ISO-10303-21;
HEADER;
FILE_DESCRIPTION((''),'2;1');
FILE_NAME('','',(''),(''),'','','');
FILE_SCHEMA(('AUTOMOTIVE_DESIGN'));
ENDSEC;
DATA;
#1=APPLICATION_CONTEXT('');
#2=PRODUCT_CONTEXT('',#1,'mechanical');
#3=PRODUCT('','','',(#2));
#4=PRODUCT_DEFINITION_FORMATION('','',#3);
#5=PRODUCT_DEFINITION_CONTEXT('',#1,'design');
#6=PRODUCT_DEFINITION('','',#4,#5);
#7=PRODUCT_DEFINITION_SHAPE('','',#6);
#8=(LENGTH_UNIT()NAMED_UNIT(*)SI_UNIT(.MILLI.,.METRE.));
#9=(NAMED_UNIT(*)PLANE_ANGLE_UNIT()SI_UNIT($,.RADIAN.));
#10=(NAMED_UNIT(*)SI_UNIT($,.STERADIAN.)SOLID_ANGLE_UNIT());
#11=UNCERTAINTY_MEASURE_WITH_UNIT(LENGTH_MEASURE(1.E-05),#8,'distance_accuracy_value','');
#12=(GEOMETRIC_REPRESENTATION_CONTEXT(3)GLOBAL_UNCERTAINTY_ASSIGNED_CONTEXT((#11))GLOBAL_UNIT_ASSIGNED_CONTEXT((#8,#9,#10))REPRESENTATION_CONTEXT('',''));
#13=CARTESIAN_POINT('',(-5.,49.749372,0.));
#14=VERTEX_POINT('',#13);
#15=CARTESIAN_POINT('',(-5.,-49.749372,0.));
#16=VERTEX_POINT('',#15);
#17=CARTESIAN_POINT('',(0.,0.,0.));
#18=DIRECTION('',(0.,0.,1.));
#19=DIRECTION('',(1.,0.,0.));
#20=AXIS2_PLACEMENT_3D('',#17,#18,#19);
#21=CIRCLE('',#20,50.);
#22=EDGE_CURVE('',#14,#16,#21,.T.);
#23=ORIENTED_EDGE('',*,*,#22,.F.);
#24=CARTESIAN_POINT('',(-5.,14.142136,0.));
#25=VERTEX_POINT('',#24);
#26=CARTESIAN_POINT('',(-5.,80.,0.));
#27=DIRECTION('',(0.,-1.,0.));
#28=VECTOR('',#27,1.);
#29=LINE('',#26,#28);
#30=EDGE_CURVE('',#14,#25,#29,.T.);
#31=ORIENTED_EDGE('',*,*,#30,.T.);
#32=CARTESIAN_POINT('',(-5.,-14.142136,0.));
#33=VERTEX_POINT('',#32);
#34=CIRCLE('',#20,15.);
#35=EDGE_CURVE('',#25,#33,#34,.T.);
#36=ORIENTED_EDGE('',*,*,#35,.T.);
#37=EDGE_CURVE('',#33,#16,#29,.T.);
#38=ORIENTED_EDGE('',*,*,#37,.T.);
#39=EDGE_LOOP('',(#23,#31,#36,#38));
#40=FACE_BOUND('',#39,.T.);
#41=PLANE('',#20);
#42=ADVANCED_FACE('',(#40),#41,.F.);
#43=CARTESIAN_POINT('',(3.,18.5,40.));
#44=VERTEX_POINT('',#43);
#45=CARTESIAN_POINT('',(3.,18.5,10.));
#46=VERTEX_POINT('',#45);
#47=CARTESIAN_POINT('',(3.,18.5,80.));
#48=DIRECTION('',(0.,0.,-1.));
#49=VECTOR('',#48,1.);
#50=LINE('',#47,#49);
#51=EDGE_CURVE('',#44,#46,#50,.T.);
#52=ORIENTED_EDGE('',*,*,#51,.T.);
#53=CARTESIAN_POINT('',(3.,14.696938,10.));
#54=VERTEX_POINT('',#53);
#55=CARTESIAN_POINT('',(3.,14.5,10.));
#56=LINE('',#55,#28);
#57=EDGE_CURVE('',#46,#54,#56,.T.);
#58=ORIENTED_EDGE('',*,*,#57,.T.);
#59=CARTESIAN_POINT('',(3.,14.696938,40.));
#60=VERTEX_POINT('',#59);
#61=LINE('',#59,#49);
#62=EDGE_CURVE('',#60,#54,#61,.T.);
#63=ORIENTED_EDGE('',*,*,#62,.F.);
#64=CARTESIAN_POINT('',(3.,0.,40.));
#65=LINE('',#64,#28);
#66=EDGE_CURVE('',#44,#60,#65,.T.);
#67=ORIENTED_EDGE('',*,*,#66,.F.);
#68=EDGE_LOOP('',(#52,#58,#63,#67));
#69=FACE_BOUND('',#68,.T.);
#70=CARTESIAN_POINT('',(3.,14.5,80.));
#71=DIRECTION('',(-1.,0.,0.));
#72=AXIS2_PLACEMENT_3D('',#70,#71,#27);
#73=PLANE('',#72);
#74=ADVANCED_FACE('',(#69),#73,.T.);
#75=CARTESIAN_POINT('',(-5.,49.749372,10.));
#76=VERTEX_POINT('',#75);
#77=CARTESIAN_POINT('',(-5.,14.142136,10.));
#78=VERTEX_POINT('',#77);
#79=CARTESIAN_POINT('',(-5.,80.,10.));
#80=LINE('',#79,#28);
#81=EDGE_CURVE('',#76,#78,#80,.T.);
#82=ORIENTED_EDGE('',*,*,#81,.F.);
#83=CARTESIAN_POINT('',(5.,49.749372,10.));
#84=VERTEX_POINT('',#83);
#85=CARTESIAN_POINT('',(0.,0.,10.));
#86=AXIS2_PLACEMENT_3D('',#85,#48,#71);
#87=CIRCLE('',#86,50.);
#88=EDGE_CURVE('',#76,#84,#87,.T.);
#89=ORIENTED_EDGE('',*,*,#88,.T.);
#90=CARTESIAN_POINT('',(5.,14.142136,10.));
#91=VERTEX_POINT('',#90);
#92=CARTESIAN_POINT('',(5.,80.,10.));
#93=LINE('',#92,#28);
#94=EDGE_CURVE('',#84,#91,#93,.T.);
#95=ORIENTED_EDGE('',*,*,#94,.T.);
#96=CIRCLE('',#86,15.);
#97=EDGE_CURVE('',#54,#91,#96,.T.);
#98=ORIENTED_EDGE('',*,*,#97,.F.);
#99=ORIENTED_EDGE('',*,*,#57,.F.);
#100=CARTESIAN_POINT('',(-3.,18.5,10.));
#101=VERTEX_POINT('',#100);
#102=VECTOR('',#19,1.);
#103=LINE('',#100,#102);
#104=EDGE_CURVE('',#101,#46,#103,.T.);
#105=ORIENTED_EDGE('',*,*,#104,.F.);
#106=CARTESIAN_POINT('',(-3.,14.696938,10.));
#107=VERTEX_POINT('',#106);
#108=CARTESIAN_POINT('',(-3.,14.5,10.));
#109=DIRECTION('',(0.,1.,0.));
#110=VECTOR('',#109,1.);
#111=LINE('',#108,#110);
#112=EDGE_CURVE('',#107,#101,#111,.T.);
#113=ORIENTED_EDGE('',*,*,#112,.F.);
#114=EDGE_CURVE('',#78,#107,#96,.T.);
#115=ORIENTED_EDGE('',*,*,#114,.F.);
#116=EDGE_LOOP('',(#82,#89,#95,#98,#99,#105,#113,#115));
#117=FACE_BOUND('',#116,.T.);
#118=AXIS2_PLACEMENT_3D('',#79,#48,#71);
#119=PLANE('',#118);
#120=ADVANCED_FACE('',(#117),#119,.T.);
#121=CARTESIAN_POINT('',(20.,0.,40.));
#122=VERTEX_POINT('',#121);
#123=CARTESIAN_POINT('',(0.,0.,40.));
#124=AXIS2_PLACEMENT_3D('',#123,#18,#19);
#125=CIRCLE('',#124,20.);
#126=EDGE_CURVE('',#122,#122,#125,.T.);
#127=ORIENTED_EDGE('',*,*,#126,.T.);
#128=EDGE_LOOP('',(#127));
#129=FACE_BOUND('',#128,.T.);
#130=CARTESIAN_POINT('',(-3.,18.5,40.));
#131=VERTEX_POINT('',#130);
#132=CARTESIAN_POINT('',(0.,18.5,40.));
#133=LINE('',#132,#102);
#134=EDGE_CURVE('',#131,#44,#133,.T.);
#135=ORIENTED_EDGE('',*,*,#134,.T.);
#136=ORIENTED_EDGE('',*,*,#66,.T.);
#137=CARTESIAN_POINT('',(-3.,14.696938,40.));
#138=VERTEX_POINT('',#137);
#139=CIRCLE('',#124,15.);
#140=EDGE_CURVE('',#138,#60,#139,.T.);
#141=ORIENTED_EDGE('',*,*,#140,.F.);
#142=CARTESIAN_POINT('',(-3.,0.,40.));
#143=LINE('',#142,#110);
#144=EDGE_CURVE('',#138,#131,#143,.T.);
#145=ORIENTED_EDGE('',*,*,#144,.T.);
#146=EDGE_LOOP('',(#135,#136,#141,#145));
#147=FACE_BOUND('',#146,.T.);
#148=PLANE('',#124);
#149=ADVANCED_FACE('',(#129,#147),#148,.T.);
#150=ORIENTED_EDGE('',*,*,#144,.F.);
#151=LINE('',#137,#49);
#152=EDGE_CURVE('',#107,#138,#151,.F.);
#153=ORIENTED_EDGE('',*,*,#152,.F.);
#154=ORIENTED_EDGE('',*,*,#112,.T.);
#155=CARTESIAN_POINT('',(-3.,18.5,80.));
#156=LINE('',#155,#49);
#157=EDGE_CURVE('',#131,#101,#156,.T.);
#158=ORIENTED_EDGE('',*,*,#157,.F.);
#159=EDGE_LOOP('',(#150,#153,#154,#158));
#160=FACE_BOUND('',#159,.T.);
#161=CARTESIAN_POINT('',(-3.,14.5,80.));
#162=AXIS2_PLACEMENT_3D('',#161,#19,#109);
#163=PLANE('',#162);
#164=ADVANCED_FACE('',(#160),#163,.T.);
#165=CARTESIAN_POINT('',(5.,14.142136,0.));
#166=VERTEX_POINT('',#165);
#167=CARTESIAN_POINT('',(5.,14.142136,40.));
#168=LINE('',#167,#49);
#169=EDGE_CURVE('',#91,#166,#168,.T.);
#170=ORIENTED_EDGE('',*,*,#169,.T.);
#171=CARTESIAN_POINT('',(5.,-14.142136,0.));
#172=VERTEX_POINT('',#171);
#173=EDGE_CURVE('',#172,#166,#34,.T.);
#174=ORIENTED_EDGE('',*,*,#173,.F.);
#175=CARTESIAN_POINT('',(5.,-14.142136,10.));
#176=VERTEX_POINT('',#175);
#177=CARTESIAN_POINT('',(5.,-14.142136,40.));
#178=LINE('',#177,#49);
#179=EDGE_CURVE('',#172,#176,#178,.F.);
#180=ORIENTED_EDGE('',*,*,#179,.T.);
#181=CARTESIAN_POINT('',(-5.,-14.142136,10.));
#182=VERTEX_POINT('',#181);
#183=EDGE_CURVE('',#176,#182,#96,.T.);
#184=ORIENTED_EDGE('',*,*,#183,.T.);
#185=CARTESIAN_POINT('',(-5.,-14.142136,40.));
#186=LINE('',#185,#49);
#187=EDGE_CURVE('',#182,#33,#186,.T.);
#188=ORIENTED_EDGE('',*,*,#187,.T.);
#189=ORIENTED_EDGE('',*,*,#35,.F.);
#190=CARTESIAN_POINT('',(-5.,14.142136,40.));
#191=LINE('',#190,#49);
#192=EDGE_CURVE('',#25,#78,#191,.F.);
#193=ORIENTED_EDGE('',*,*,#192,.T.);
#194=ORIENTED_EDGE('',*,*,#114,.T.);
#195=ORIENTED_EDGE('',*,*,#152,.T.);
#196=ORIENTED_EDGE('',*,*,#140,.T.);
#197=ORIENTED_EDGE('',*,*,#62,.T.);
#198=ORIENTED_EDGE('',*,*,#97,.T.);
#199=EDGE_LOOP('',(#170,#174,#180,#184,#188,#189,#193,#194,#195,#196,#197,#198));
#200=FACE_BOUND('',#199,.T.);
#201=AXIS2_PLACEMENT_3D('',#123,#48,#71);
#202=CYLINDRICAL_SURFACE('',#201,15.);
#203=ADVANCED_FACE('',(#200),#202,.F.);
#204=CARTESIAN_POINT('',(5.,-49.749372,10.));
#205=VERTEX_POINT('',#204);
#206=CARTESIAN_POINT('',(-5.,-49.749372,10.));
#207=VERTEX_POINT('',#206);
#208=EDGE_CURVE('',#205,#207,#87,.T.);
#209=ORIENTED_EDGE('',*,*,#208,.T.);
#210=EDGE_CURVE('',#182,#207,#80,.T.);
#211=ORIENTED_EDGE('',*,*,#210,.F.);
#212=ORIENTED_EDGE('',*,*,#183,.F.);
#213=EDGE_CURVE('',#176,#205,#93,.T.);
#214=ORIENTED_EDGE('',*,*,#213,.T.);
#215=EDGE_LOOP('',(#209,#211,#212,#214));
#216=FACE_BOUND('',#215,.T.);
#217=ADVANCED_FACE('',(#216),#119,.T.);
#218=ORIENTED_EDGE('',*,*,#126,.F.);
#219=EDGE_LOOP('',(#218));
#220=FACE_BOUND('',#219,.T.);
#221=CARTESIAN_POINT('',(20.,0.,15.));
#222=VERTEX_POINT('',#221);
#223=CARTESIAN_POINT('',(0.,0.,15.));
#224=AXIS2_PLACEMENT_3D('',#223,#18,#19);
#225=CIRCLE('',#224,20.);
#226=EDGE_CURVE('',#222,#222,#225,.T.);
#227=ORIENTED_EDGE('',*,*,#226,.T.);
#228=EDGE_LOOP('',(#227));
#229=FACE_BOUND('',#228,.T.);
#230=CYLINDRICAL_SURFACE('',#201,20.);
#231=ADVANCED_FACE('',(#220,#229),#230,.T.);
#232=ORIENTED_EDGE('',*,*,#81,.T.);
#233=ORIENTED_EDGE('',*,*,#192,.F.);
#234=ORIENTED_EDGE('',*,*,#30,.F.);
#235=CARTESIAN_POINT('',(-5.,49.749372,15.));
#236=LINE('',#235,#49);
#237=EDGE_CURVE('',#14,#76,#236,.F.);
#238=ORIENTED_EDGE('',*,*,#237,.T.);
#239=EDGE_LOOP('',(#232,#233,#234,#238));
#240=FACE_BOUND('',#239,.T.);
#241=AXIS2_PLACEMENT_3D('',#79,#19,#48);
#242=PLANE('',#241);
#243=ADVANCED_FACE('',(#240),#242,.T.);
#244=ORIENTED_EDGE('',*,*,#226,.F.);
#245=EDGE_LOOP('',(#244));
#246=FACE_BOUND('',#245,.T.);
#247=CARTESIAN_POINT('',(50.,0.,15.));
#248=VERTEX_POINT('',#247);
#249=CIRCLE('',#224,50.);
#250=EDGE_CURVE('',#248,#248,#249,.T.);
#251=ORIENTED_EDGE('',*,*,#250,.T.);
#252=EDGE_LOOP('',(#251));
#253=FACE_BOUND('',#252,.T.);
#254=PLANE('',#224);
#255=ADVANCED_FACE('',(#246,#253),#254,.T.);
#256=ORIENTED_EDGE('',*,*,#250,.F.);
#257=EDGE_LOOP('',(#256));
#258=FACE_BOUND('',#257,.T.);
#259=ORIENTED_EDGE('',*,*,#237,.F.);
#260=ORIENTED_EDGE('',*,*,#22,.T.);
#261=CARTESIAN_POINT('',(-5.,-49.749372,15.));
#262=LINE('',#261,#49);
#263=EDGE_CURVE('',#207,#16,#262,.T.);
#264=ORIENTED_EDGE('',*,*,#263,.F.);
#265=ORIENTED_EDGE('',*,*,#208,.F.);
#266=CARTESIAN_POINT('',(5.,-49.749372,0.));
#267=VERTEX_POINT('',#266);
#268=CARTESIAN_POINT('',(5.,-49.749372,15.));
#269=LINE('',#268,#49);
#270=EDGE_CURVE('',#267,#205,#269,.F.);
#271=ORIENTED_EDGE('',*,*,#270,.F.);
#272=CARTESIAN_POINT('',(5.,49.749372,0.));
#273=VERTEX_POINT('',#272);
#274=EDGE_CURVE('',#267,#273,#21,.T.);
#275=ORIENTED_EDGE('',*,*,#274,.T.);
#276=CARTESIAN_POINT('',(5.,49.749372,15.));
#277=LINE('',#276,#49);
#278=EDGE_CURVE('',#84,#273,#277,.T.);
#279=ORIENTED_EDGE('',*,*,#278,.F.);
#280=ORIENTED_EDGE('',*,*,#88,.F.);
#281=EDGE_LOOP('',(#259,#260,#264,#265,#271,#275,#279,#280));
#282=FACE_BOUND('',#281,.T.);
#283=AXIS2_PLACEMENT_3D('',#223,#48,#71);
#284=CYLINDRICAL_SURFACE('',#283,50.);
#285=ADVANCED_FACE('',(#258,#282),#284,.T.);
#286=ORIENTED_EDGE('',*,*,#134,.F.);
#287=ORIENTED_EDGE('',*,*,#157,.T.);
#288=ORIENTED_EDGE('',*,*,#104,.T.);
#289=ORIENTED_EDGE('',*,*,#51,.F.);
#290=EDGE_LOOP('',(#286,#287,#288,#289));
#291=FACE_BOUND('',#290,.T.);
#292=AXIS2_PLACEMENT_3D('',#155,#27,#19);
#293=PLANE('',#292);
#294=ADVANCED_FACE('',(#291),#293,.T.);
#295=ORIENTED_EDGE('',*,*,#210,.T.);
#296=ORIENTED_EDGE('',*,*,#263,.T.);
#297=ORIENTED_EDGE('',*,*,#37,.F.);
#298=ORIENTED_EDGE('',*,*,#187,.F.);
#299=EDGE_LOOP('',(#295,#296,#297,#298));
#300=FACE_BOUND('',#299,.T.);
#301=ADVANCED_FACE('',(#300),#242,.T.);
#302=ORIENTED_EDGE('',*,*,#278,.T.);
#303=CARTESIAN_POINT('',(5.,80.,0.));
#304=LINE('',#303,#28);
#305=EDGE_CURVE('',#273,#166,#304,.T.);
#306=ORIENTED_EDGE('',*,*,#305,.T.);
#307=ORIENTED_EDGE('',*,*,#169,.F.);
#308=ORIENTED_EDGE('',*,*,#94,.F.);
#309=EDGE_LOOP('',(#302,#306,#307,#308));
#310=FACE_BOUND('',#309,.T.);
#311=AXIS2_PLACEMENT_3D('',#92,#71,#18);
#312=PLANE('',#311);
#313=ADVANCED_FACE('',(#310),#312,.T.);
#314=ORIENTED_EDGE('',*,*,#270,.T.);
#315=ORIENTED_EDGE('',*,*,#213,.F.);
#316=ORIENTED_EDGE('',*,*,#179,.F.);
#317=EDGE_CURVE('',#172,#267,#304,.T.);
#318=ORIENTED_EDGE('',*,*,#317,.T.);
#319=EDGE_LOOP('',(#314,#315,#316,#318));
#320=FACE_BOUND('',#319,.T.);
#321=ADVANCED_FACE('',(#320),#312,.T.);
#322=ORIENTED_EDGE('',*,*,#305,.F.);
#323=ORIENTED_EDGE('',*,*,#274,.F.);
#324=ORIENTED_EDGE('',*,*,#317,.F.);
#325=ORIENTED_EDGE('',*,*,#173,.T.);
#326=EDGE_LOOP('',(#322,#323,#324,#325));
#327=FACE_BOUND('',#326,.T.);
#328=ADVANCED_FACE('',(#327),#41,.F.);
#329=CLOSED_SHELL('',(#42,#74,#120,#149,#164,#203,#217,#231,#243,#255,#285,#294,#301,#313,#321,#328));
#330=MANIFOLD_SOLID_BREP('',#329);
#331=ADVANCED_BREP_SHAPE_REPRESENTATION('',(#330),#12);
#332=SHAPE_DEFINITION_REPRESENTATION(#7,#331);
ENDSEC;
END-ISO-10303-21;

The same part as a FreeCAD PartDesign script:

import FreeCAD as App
import Part
import Sketcher
Q = App.Units.Quantity


def add_polygon(sketch, points):
    """Adds a closed chain of lines whose ends are joined by coincident constraints."""
    first, n = sketch.GeometryCount, len(points)
    for a, b in zip(points, points[1:] + points[:1]):
        sketch.addGeometry(Part.LineSegment(App.Vector(*a, 0), App.Vector(*b, 0)), False)
    for i in range(n):
        sketch.addConstraint(Sketcher.Constraint("Coincident", first + i, 2, first + (i + 1) % n, 1))

doc = App.newDocument("Part")
body = doc.addObject("PartDesign::Body", "Body")

sketch1 = doc.addObject("Sketcher::SketchObject", "Sketch")
body.addObject(sketch1)
sketch1.AttachmentSupport = (doc.XY_Plane, [""])
sketch1.MapMode = "FlatFace"
sketch1.addGeometry([
    Part.Circle(App.Vector(0, 0, 0), App.Vector(0, 0, 1), 50),
    Part.Circle(App.Vector(0, 0, 0), App.Vector(0, 0, 1), 20),
], False)
sketch1.addConstraint([
    Sketcher.Constraint("Coincident", 0, 3, -1, 1),
    Sketcher.Constraint("Coincident", 1, 3, -1, 1),
    Sketcher.Constraint("Diameter", 0, Q("100 mm")),
    Sketcher.Constraint("Diameter", 1, Q("40 mm")),
])
pad1 = doc.addObject("PartDesign::Pad", "Pad")
body.addObject(pad1)
pad1.Profile = sketch1
pad1.Length = 15

sketch2 = doc.addObject("Sketcher::SketchObject", "Sketch001")
body.addObject(sketch2)
sketch2.AttachmentSupport = (doc.XY_Plane, [""])
sketch2.MapMode = "FlatFace"
sketch2.addGeometry([
    Part.Circle(App.Vector(0, 0, 0), App.Vector(0, 0, 1), 20),
    Part.Circle(App.Vector(0, 0, 0), App.Vector(0, 0, 1), 15),
], False)
sketch2.addConstraint([
    Sketcher.Constraint("Coincident", 0, 3, -1, 1),
    Sketcher.Constraint("Coincident", 1, 3, -1, 1),
    Sketcher.Constraint("Diameter", 0, Q("40 mm")),
    Sketcher.Constraint("Diameter", 1, Q("30 mm")),
])
pad2 = doc.addObject("PartDesign::Pad", "Pad001")
body.addObject(pad2)
pad2.Profile = sketch2
pad2.Length = 40

sketch3 = doc.addObject("Sketcher::SketchObject", "Sketch002")
body.addObject(sketch3)
sketch3.AttachmentSupport = (doc.XY_Plane, [""])
sketch3.MapMode = "FlatFace"
add_polygon(sketch3, [(-3, 18.5), (-3, 14.5), (3, 14.5), (3, 18.5)])
sketch3.addConstraint([
    Sketcher.Constraint("Vertical", 0),
    Sketcher.Constraint("Horizontal", 1),
    Sketcher.Constraint("Vertical", 2),
    Sketcher.Constraint("Horizontal", 3),
    Sketcher.Constraint("DistanceX", 1, 1, 1, 2, Q("6 mm")),
    Sketcher.Constraint("DistanceY", 0, 2, 0, 1, Q("4 mm")),
    Sketcher.Constraint("DistanceX", 0, 2, -1, 1, Q("3 mm")),
    Sketcher.Constraint("DistanceY", -1, 1, 0, 2, Q("14.5 mm")),
])
pocket1 = doc.addObject("PartDesign::Pocket", "Pocket")
body.addObject(pocket1)
pocket1.Profile = sketch3
pocket1.Length = 80
pocket1.Reversed = True

sketch4 = doc.addObject("Sketcher::SketchObject", "Sketch003")
body.addObject(sketch4)
sketch4.AttachmentSupport = (doc.XZ_Plane, [""])
sketch4.MapMode = "FlatFace"
add_polygon(sketch4, [(-5, 0), (-5, 10), (5, 10), (5, 0)])
sketch4.addConstraint([
    Sketcher.Constraint("Vertical", 0),
    Sketcher.Constraint("Horizontal", 1),
    Sketcher.Constraint("Vertical", 2),
    Sketcher.Constraint("Horizontal", 3),
    Sketcher.Constraint("Symmetric", 2, 2, 3, 2, -1, 1),
    Sketcher.Constraint("Equal", 3, 0),
    Sketcher.Constraint("DistanceX", 1, 1, 1, 2, Q("10 mm")),
])
pocket2 = doc.addObject("PartDesign::Pocket", "Pocket001")
body.addObject(pocket2)
pocket2.Profile = sketch4
pocket2.Type = "ThroughAll"
pocket2.Midplane = True

doc.recompute()
